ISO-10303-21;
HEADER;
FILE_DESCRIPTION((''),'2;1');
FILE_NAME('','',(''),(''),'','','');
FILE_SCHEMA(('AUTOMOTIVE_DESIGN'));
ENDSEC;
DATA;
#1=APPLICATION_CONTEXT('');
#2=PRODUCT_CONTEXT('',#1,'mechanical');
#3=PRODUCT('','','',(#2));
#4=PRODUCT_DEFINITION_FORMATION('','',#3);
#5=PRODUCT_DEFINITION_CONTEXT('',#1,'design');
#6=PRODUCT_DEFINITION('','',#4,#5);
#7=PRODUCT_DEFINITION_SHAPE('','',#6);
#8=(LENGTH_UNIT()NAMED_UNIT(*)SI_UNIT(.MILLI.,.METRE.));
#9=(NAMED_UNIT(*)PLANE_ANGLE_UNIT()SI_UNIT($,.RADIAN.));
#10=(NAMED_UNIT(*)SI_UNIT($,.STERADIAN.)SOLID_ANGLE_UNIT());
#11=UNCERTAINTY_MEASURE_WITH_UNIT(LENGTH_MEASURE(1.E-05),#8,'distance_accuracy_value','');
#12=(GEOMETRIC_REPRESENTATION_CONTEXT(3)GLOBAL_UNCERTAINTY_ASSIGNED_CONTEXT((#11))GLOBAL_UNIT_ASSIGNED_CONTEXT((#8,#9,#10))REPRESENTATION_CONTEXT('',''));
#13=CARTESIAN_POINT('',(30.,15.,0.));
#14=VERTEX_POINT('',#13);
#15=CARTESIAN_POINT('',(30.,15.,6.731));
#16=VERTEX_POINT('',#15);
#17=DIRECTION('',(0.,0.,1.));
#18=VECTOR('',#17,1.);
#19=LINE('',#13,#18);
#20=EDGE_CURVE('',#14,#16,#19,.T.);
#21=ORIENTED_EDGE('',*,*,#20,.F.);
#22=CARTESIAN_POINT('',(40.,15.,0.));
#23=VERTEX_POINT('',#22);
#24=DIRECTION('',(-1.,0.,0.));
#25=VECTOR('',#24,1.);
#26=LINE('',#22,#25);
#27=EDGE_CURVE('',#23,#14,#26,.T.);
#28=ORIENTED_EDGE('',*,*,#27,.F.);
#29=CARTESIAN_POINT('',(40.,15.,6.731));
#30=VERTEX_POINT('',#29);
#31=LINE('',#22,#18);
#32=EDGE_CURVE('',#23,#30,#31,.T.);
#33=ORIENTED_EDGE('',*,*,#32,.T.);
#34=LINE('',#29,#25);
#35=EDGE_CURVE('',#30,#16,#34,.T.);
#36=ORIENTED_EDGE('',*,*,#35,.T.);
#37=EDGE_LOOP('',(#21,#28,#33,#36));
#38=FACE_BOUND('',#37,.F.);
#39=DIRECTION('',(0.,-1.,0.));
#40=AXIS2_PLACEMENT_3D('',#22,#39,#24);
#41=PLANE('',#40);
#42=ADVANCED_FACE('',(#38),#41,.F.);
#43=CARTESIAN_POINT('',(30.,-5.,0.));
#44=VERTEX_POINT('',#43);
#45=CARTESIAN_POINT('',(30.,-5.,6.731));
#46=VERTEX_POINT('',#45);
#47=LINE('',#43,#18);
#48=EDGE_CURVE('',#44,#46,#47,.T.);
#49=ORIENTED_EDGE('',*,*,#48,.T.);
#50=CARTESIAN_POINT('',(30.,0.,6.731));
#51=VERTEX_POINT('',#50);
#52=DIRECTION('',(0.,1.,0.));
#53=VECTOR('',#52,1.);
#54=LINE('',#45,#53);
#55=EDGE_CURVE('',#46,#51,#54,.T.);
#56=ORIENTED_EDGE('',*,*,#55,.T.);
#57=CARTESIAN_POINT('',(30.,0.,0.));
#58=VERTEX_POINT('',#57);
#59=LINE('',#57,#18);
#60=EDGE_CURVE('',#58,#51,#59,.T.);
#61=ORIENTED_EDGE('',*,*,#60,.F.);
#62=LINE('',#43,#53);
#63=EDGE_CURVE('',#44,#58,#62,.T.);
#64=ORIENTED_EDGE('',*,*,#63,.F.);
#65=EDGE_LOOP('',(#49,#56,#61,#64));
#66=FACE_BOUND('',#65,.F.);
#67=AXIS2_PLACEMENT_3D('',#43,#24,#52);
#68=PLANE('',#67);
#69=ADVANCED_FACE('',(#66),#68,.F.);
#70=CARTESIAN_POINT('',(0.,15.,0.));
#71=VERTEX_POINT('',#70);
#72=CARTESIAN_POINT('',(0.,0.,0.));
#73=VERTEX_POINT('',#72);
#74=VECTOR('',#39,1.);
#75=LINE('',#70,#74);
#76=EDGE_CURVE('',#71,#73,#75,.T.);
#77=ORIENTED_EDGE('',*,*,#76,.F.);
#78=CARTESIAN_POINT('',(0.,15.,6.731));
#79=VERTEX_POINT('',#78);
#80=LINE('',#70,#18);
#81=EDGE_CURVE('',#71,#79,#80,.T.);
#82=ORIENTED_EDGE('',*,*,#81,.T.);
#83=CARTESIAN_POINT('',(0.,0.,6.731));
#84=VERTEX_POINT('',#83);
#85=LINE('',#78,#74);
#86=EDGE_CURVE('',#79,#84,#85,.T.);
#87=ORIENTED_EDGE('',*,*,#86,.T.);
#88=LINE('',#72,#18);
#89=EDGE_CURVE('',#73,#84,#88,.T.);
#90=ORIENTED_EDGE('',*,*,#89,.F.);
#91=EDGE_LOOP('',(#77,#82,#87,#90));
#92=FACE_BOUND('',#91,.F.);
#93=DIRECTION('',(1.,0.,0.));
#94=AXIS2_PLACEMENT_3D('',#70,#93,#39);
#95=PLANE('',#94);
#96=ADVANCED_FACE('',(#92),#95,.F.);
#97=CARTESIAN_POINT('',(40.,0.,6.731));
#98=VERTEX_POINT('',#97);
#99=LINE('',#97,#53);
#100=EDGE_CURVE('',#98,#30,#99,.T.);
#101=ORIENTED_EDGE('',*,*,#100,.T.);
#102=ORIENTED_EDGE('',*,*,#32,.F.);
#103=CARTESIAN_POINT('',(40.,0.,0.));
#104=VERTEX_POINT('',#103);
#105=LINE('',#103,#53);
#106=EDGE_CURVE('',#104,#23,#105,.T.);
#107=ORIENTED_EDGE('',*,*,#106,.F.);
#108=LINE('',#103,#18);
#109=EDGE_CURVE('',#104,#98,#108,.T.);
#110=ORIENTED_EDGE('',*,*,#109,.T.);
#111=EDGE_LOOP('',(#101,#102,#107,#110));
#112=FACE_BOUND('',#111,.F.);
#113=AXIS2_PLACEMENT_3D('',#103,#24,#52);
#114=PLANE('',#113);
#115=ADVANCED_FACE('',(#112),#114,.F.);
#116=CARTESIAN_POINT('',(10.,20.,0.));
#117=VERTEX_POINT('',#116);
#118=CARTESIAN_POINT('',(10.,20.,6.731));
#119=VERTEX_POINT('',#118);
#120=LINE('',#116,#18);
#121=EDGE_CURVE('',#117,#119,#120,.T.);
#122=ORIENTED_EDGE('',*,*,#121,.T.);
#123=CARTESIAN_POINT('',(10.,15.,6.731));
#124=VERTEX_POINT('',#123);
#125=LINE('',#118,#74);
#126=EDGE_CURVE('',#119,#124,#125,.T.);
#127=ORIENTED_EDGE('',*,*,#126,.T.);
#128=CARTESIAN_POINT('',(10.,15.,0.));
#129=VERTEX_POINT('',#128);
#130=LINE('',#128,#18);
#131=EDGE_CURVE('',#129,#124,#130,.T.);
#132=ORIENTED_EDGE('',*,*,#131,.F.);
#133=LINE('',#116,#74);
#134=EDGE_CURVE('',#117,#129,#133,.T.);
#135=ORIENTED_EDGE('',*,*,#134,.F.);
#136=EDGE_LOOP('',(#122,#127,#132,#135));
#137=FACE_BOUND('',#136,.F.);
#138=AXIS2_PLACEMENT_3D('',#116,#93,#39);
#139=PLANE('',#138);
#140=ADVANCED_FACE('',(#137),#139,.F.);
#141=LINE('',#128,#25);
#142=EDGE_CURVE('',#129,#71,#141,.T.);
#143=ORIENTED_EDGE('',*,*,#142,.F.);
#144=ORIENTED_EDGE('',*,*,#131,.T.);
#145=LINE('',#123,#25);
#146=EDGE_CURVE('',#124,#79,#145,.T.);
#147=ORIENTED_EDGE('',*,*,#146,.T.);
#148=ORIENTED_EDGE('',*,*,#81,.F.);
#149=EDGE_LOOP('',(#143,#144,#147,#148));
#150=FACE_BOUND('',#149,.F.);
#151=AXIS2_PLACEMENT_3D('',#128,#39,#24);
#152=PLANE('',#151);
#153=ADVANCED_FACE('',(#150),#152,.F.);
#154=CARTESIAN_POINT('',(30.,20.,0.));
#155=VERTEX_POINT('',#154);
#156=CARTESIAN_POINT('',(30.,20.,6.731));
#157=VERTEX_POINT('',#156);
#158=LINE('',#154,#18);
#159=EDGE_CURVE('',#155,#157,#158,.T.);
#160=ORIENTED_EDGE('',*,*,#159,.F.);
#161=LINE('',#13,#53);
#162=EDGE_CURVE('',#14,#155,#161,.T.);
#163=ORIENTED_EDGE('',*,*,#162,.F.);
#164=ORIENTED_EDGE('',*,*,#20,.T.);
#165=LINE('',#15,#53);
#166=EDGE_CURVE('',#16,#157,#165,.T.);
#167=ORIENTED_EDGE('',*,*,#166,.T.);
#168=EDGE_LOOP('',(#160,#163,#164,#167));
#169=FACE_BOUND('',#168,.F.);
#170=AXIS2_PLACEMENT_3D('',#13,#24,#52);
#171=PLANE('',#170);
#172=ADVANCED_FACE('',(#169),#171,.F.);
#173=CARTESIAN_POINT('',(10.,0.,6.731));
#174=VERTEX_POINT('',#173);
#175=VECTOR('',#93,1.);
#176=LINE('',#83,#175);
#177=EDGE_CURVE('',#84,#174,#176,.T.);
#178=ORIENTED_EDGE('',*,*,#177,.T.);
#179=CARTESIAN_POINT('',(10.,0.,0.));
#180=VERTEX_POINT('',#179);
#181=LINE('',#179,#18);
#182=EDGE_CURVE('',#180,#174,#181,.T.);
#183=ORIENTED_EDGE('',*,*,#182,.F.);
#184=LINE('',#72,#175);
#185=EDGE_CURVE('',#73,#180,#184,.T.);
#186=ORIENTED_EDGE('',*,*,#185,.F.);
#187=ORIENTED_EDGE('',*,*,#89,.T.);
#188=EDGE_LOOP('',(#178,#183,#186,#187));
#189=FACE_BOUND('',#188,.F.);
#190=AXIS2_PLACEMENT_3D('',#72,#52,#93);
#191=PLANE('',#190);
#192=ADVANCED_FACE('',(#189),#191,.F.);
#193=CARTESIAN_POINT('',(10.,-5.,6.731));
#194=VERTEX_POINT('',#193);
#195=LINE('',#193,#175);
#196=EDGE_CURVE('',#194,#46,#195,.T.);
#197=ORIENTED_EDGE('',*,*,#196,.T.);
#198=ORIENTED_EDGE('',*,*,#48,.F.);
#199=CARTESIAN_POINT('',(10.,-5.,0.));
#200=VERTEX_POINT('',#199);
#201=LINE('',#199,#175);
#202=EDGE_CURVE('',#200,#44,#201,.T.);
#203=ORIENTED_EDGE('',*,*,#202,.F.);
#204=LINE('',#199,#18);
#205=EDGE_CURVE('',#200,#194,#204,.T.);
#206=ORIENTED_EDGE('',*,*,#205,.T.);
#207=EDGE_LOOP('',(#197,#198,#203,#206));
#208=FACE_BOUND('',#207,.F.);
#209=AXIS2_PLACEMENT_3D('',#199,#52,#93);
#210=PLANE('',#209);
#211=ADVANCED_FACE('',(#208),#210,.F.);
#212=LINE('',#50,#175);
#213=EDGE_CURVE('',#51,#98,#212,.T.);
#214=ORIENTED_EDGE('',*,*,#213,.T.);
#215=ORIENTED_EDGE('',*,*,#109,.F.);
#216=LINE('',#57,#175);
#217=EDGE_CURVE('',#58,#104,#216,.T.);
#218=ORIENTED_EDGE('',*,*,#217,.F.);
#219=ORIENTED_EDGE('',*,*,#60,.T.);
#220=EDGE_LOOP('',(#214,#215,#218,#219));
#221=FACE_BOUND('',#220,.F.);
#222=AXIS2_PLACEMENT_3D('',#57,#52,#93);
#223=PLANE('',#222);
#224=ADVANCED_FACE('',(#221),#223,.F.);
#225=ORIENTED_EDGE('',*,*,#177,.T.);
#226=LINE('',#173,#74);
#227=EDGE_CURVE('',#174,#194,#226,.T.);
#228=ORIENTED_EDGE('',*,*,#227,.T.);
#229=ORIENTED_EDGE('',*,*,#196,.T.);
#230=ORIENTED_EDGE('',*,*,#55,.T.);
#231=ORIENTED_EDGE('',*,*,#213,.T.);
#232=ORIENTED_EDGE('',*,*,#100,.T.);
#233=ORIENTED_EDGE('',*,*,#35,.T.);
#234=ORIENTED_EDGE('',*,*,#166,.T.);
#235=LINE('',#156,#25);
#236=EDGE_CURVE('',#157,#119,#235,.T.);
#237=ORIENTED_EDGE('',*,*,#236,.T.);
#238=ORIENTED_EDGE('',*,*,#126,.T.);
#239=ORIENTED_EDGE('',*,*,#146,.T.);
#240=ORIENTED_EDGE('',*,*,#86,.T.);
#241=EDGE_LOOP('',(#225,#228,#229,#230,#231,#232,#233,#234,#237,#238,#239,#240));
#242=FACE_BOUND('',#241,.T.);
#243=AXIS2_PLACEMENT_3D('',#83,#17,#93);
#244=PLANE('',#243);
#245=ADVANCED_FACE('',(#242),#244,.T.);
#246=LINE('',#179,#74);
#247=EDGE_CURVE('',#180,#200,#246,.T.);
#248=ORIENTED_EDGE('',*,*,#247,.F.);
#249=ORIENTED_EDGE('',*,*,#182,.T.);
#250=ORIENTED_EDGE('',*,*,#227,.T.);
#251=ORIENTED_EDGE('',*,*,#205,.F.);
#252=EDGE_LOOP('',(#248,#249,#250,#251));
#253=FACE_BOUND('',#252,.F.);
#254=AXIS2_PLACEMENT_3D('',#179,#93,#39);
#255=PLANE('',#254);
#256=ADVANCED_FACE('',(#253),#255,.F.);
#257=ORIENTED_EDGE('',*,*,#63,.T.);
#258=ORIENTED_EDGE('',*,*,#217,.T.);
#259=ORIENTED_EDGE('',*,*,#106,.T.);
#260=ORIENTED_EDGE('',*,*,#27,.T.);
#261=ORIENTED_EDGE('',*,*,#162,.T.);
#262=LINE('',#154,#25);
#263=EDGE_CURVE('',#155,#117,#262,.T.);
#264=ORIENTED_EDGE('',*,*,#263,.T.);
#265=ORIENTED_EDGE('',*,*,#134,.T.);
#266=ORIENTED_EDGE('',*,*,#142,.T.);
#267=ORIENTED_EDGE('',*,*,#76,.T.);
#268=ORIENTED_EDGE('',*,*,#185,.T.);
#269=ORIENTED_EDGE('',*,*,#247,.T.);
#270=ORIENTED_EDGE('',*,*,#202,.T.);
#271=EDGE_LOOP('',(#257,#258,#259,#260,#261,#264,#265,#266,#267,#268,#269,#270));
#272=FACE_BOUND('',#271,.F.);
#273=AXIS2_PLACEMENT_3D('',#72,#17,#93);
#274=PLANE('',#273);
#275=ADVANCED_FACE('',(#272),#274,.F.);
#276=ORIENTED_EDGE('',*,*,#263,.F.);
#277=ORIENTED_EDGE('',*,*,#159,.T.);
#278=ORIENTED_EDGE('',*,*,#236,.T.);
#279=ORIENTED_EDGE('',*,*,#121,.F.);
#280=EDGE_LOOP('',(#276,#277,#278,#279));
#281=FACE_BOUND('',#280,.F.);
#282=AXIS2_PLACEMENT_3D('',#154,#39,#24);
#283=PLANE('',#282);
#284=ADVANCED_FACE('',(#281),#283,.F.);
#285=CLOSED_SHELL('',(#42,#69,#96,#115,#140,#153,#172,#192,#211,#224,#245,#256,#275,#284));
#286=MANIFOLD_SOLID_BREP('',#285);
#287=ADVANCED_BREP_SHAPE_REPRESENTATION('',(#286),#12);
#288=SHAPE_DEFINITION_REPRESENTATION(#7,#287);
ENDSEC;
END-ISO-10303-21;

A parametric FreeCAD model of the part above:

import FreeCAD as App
import Part
import Sketcher
from FreeCAD import Vector

doc = App.newDocument("Part")
params = doc.addObject("Spreadsheet::Sheet", "Params")
for row, (alias, value) in enumerate([
    ("sketch1_width", "10 mm"),
    ("sketch1_width2", "20 mm"),
    ("sketch1_height", "15 mm"),
    ("sketch1_height2", "5 mm"),
    ("pad1_length", "6.731 mm"),
], start=1):
    params.set(f"A{row}", alias)
    params.set(f"B{row}", "=" + value)
    params.setAlias(f"B{row}", alias)

body = doc.addObject("PartDesign::Body", "Body")

# Sketch on XY plane
sketch1 = body.newObject("Sketcher::SketchObject", "Sketch")
sketch1.AttachmentSupport = (doc.getObject("XY_Plane"), [""])
sketch1.MapMode = "FlatFace"
sketch1.addGeometry([
    Part.LineSegment(Vector(0, 15, 0), Vector(0, 0, 0)),  # 0
    Part.LineSegment(Vector(0, 0, 0), Vector(10, 0, 0)),  # 1
    Part.LineSegment(Vector(10, 0, 0), Vector(10, -5, 0)),  # 2
    Part.LineSegment(Vector(10, -5, 0), Vector(30, -5, 0)),  # 3
    Part.LineSegment(Vector(30, -5, 0), Vector(30, 0, 0)),  # 4
    Part.LineSegment(Vector(30, 0, 0), Vector(40, 0, 0)),  # 5
    Part.LineSegment(Vector(40, 0, 0), Vector(40, 15, 0)),  # 6
    Part.LineSegment(Vector(40, 15, 0), Vector(30, 15, 0)),  # 7
    Part.LineSegment(Vector(30, 15, 0), Vector(30, 20, 0)),  # 8
    Part.LineSegment(Vector(30, 20, 0), Vector(10, 20, 0)),  # 9
    Part.LineSegment(Vector(10, 20, 0), Vector(10, 15, 0)),  # 10
    Part.LineSegment(Vector(10, 15, 0), Vector(0, 15, 0)),  # 11
], False)
sketch1.addConstraint([
    Sketcher.Constraint("Coincident", 0, 2, 1, 1),
    Sketcher.Constraint("Coincident", 1, 2, 2, 1),
    Sketcher.Constraint("Coincident", 2, 2, 3, 1),
    Sketcher.Constraint("Coincident", 3, 2, 4, 1),
    Sketcher.Constraint("Coincident", 4, 2, 5, 1),
    Sketcher.Constraint("Coincident", 5, 2, 6, 1),
    Sketcher.Constraint("Coincident", 6, 2, 7, 1),
    Sketcher.Constraint("Coincident", 7, 2, 8, 1),
    Sketcher.Constraint("Coincident", 8, 2, 9, 1),
    Sketcher.Constraint("Coincident", 9, 2, 10, 1),
    Sketcher.Constraint("Coincident", 10, 2, 11, 1),
    Sketcher.Constraint("Coincident", 11, 2, 0, 1),
    Sketcher.Constraint("Vertical", 0),
    Sketcher.Constraint("Horizontal", 1),
    Sketcher.Constraint("Vertical", 2),
    Sketcher.Constraint("Horizontal", 3),
    Sketcher.Constraint("Vertical", 4),
    Sketcher.Constraint("Horizontal", 5),
    Sketcher.Constraint("Vertical", 6),
    Sketcher.Constraint("Horizontal", 7),
    Sketcher.Constraint("Vertical", 8),
    Sketcher.Constraint("Horizontal", 9),
    Sketcher.Constraint("Vertical", 10),
    Sketcher.Constraint("Horizontal", 11),
    Sketcher.Constraint("Coincident", 0, 2, -1, 1),
    Sketcher.Constraint("PointOnObject", 4, 2, -1),
    Sketcher.Constraint("Horizontal", 7, 2, 10, 2),
    Sketcher.Constraint("Vertical", 4, 2, 7, 2),
    Sketcher.Constraint("Vertical", 2, 2, 9, 2),
    Sketcher.Constraint("Equal", 1, 5),
    Sketcher.Constraint("Equal", 4, 8),
    Sketcher.Constraint("DistanceX", 1, 1, 1, 2, 10.0),
    Sketcher.Constraint("DistanceX", 3, 1, 3, 2, 20.0),
    Sketcher.Constraint("DistanceY", 0, 2, 0, 1, 15.0),
    Sketcher.Constraint("DistanceY", 2, 2, 2, 1, 5.0),
])
sketch1.setExpression("Constraints[31]", "Params.sketch1_width")
sketch1.setExpression("Constraints[32]", "Params.sketch1_width2")
sketch1.setExpression("Constraints[33]", "Params.sketch1_height")
sketch1.setExpression("Constraints[34]", "Params.sketch1_height2")
pad1 = body.newObject("PartDesign::Pad", "Pad")
pad1.Profile = sketch1
pad1.setExpression("Length", "Params.pad1_length")

doc.recompute()
